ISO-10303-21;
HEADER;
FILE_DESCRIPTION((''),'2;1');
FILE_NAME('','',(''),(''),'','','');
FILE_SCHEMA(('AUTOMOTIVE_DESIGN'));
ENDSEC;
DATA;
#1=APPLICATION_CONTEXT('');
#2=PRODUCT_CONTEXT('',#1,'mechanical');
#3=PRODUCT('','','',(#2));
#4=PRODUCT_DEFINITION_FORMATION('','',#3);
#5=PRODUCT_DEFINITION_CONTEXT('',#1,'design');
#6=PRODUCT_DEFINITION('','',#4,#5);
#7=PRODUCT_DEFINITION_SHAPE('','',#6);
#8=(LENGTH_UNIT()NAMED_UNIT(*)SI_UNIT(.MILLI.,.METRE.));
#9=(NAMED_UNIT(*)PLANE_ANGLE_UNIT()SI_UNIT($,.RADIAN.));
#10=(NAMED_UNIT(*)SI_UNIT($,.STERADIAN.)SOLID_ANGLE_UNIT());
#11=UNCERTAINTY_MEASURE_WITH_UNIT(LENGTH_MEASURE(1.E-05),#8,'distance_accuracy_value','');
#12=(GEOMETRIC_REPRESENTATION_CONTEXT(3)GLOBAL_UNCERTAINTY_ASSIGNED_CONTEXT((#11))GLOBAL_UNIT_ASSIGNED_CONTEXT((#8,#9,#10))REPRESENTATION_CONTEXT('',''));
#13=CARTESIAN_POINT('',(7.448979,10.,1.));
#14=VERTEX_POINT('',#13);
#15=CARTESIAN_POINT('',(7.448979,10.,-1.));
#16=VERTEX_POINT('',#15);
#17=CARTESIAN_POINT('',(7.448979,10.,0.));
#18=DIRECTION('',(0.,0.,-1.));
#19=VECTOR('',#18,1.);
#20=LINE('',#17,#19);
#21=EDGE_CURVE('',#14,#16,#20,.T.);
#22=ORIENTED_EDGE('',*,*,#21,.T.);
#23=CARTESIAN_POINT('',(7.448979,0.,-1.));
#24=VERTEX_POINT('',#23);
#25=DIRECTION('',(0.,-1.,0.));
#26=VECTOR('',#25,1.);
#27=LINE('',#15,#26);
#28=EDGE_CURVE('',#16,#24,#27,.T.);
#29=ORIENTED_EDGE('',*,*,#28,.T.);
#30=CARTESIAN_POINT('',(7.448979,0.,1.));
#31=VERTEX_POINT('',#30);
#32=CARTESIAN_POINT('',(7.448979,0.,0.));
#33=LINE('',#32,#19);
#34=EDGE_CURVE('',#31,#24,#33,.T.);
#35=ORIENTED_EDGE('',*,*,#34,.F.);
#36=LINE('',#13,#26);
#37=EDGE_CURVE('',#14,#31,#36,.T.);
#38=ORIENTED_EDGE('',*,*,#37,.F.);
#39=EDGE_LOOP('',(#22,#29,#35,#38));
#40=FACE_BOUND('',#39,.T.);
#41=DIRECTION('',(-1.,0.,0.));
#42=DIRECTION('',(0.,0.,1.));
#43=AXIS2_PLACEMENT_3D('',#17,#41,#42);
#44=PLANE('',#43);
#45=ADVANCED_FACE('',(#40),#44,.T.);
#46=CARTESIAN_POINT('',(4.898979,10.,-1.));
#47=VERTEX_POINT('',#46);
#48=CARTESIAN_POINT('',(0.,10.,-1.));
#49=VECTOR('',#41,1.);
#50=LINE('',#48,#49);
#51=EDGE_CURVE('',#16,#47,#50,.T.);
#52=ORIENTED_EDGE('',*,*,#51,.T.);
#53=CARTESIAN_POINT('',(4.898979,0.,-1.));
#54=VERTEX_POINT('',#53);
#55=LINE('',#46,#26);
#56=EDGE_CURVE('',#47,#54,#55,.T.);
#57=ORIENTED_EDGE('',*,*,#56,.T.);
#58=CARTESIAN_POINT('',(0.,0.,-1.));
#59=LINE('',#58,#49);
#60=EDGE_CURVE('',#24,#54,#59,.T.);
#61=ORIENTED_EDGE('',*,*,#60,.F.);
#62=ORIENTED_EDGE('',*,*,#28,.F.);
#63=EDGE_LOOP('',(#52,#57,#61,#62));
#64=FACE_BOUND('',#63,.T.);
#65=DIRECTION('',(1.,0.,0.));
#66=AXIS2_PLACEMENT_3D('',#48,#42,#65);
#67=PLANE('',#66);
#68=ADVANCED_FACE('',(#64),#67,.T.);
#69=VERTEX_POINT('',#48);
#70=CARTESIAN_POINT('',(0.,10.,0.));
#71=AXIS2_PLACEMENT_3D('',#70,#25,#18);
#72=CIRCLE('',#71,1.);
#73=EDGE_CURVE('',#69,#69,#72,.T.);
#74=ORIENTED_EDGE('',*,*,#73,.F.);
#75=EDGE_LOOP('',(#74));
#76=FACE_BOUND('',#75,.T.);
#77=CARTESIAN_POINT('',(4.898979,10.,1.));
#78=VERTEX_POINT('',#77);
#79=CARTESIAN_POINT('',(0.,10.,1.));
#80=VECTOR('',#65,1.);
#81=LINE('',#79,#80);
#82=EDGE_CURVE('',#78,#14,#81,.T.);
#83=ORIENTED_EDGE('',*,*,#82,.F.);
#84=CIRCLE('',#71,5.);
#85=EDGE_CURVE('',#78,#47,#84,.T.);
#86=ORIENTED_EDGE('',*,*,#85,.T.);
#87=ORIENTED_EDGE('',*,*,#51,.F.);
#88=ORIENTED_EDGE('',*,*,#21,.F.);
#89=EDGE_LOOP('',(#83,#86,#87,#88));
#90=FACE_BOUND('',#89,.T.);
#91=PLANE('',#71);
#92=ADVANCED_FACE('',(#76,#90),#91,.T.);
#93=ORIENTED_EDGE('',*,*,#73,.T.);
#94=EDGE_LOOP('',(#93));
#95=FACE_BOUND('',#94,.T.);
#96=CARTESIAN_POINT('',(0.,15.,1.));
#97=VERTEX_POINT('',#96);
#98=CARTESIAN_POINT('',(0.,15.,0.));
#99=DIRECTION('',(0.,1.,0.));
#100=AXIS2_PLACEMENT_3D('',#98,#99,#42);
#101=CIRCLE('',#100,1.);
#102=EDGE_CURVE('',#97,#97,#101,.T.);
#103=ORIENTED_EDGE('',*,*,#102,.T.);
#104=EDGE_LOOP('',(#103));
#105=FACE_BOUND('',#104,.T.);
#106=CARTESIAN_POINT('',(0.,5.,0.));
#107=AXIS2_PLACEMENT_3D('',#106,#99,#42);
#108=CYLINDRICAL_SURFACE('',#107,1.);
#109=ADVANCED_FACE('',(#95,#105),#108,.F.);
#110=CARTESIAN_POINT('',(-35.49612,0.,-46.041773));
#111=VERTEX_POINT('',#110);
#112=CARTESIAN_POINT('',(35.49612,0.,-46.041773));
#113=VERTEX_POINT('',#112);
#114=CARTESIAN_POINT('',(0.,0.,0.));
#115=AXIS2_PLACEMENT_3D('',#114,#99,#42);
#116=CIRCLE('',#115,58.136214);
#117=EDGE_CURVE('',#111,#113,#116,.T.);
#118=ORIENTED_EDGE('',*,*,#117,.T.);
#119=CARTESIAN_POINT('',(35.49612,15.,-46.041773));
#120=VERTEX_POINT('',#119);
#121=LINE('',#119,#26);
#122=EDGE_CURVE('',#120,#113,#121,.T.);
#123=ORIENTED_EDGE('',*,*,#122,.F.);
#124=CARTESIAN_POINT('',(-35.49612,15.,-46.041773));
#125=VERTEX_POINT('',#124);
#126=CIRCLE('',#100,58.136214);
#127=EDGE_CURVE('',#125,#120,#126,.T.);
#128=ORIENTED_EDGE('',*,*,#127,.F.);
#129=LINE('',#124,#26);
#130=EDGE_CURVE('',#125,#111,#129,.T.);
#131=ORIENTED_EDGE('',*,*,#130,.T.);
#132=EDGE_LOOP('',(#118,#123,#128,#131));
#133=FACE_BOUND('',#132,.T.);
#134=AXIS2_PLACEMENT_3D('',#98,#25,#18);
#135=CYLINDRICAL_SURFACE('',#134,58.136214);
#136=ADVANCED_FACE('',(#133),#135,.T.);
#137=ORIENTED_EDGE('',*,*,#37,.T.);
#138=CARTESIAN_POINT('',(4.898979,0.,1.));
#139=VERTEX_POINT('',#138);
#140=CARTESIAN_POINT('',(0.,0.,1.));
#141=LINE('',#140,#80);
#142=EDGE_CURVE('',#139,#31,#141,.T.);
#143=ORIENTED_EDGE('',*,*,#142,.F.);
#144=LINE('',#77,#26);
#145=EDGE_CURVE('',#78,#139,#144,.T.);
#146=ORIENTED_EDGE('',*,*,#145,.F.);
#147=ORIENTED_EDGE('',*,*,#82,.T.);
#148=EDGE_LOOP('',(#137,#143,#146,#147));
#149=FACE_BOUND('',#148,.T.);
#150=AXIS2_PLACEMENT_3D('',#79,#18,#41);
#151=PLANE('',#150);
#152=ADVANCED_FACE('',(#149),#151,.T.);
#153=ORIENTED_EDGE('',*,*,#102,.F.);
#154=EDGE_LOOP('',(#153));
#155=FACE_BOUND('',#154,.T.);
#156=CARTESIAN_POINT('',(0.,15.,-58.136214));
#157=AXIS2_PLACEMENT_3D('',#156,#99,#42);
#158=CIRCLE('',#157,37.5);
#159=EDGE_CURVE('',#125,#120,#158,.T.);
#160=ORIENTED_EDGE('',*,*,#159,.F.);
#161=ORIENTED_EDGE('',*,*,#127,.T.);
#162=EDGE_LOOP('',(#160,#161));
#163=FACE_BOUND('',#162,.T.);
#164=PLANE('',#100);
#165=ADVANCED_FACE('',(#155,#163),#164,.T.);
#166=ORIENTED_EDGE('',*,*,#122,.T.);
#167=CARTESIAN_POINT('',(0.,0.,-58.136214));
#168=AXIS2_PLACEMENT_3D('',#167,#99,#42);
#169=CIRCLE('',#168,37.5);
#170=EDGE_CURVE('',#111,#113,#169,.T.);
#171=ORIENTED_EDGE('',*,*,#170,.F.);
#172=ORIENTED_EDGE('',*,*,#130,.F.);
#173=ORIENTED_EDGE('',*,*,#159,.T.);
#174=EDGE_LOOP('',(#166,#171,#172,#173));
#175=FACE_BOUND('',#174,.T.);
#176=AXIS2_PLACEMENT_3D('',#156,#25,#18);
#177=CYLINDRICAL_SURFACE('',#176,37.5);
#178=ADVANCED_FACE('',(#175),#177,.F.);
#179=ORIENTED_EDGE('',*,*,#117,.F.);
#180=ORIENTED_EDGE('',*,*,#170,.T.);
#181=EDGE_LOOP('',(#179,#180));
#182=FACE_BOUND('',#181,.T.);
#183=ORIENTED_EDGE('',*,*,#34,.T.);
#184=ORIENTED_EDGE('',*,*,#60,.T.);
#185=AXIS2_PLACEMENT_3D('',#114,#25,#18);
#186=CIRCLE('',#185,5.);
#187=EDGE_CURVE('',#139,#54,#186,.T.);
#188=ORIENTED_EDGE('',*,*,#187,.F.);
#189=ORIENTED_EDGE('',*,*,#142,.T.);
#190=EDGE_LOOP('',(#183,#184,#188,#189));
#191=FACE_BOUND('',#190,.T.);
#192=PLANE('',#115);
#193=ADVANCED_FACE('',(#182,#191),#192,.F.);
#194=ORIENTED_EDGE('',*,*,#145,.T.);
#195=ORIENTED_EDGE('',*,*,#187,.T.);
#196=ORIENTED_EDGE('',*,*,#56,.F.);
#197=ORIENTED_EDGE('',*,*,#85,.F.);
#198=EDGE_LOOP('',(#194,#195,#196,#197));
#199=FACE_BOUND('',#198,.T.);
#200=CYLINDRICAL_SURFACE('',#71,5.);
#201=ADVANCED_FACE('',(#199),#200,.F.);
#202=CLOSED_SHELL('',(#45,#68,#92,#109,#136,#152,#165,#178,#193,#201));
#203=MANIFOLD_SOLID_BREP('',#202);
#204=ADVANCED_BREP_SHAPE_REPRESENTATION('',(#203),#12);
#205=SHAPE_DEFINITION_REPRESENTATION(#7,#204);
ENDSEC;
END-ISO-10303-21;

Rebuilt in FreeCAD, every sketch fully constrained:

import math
import FreeCAD as App
import Part
import Sketcher

V = App.Vector

doc = App.newDocument("Part")
body = doc.addObject("PartDesign::Body", "Body")

# Sketch on XZ plane
sketch1 = body.newObject("Sketcher::SketchObject", "Sketch")
sketch1.AttachmentSupport = (doc.getObject("XZ_Plane"), [""])
sketch1.MapMode = "FlatFace"
sketch1.addGeometry([
    Part.ArcOfCircle(Part.Circle(V(0, -58, 0), V(0, 0, 1), 38), math.radians(19), math.radians(161)),
    Part.ArcOfCircle(Part.Circle(V(0, 0, 0), V(0, 0, 1), 58), math.radians(-52), math.radians(232)),
], False)
sketch1.addConstraint([
    Sketcher.Constraint("Coincident", 0, 1, 1, 1),
    Sketcher.Constraint("Coincident", 1, 2, 0, 2),
    Sketcher.Constraint("Coincident", 1, 3, -1, 1),
    Sketcher.Constraint("PointOnObject", 0, 3, -2),
    Sketcher.Constraint("Radius", 0, 37.5),
    Sketcher.Constraint("Radius", 1, 58.136214),
    Sketcher.Constraint("DistanceX", -1, 1, 0, 1, 35.49612),
])
pad1 = body.newObject("PartDesign::Pad", "Pad")
pad1.Profile = sketch1
pad1.Length = 15
pad1.Reversed = True

# Sketch on XZ plane
sketch2 = body.newObject("Sketcher::SketchObject", "Sketch001")
sketch2.AttachmentSupport = (doc.getObject("XZ_Plane"), [""])
sketch2.MapMode = "FlatFace"
sketch2.addGeometry([
    Part.LineSegment(V(7.4, 1, 0), V(4.9, 1, 0)),
    Part.ArcOfCircle(Part.Circle(V(0, 0, 0), V(0, 0, 1), 5), math.radians(12), math.radians(348)),
    Part.LineSegment(V(4.9, -1, 0), V(7.4, -1, 0)),
    Part.LineSegment(V(7.4, -1, 0), V(7.4, 1, 0)),
], False)
sketch2.addConstraint([
    Sketcher.Constraint("Coincident", 0, 2, 1, 1),
    Sketcher.Constraint("Coincident", 1, 2, 2, 1),
    Sketcher.Constraint("Coincident", 2, 2, 3, 1),
    Sketcher.Constraint("Coincident", 3, 2, 0, 1),
    Sketcher.Constraint("Horizontal", 0),
    Sketcher.Constraint("Horizontal", 2),
    Sketcher.Constraint("Vertical", 3),
    Sketcher.Constraint("Coincident", 1, 3, -1, 1),
    Sketcher.Constraint("Vertical", 0, 2, 1, 2),
    Sketcher.Constraint("Radius", 1, 5.0),
    Sketcher.Constraint("DistanceY", 3, 1, 3, 2, 2.0),
    Sketcher.Constraint("DistanceX", 0, 2, 0, 1, 2.55),
])
pocket1 = body.newObject("PartDesign::Pocket", "Pocket")
pocket1.Profile = sketch2
pocket1.Length = 10

# Sketch on XZ plane
sketch3 = body.newObject("Sketcher::SketchObject", "Sketch002")
sketch3.AttachmentSupport = (doc.getObject("XZ_Plane"), [""])
sketch3.MapMode = "FlatFace"
sketch3.AttachmentOffset = App.Placement(V(0, 0, -15), App.Rotation())
sketch3.addGeometry(Part.Circle(V(0, 0, 0), V(0, 0, 1), 1), False)
sketch3.addConstraint([
    Sketcher.Constraint("Coincident", 0, 3, -1, 1),
    Sketcher.Constraint("Diameter", 0, 2.0),
])
pocket2 = body.newObject("PartDesign::Pocket", "Pocket001")
pocket2.Profile = sketch3
pocket2.Length = 10
pocket2.Reversed = True

doc.recompute()
